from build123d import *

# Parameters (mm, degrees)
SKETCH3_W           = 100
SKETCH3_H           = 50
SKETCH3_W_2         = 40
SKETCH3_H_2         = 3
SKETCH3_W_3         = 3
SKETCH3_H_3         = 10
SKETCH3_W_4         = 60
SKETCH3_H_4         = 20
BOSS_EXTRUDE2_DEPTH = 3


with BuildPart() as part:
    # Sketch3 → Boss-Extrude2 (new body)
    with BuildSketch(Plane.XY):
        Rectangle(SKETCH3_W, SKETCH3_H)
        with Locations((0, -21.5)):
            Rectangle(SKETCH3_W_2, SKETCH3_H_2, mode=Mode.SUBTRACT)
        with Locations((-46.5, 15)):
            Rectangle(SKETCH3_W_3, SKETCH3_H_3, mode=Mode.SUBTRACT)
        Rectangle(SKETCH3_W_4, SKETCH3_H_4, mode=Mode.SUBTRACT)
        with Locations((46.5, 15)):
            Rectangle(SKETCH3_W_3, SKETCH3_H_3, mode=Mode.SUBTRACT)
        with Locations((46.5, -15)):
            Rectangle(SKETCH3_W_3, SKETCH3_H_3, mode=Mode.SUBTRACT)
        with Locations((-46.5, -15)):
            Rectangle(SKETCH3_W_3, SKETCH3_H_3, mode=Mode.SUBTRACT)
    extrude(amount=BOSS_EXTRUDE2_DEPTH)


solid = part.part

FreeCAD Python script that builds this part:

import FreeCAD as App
import Part
import Sketcher
from FreeCAD import Vector


def add_polygon(sketch, points):
    """Adds a closed chain of lines whose ends are joined by coincident constraints."""
    first, n = sketch.GeometryCount, len(points)
    for a, b in zip(points, points[1:] + points[:1]):
        sketch.addGeometry(Part.LineSegment(App.Vector(*a, 0), App.Vector(*b, 0)), False)
    for i in range(n):
        sketch.addConstraint(Sketcher.Constraint("Coincident", first + i, 2, first + (i + 1) % n, 1))

doc = App.newDocument("Part")
body = doc.addObject("PartDesign::Body", "Body")

# Sketch on XY plane
sketch1 = body.newObject("Sketcher::SketchObject", "Sketch")
sketch1.AttachmentSupport = (doc.getObject("XY_Plane"), [""])
sketch1.MapMode = "FlatFace"
add_polygon(sketch1, [(-50, 25), (-50, -25), (50, -25), (50, 25)])  # lines 0-3
add_polygon(sketch1, [(-45, -20), (-48, -20), (-48, -10), (-45, -10)])  # lines 4-7
add_polygon(sketch1, [(20, -23), (-20, -23), (-20, -20), (20, -20)])  # lines 8-11
add_polygon(sketch1, [(48, -20), (45, -20), (45, -10), (48, -10)])  # lines 12-15
add_polygon(sketch1, [(-45, 10), (-48, 10), (-48, 20), (-45, 20)])  # lines 16-19
add_polygon(sketch1, [(30, -10), (-30, -10), (-30, 10), (30, 10)])  # lines 20-23
add_polygon(sketch1, [(48, 10), (45, 10), (45, 20), (48, 20)])  # lines 24-27
sketch1.addConstraint(Sketcher.Constraint("Vertical", 0))
sketch1.addConstraint(Sketcher.Constraint("Horizontal", 1))
sketch1.addConstraint(Sketcher.Constraint("Vertical", 2))
sketch1.addConstraint(Sketcher.Constraint("Horizontal", 3))
sketch1.addConstraint(Sketcher.Constraint("Horizontal", 4))
sketch1.addConstraint(Sketcher.Constraint("Vertical", 5))
sketch1.addConstraint(Sketcher.Constraint("Horizontal", 6))
sketch1.addConstraint(Sketcher.Constraint("Vertical", 7))
sketch1.addConstraint(Sketcher.Constraint("Horizontal", 8))
sketch1.addConstraint(Sketcher.Constraint("Vertical", 9))
sketch1.addConstraint(Sketcher.Constraint("Horizontal", 10))
sketch1.addConstraint(Sketcher.Constraint("Vertical", 11))
sketch1.addConstraint(Sketcher.Constraint("Horizontal", 12))
sketch1.addConstraint(Sketcher.Constraint("Vertical", 13))
sketch1.addConstraint(Sketcher.Constraint("Horizontal", 14))
sketch1.addConstraint(Sketcher.Constraint("Vertical", 15))
sketch1.addConstraint(Sketcher.Constraint("Horizontal", 16))
sketch1.addConstraint(Sketcher.Constraint("Vertical", 17))
sketch1.addConstraint(Sketcher.Constraint("Horizontal", 18))
sketch1.addConstraint(Sketcher.Constraint("Vertical", 19))
sketch1.addConstraint(Sketcher.Constraint("Horizontal", 20))
sketch1.addConstraint(Sketcher.Constraint("Vertical", 21))
sketch1.addConstraint(Sketcher.Constraint("Horizontal", 22))
sketch1.addConstraint(Sketcher.Constraint("Vertical", 23))
sketch1.addConstraint(Sketcher.Constraint("Horizontal", 24))
sketch1.addConstraint(Sketcher.Constraint("Vertical", 25))
sketch1.addConstraint(Sketcher.Constraint("Horizontal", 26))
sketch1.addConstraint(Sketcher.Constraint("Vertical", 27))
sketch1.addConstraint(Sketcher.Constraint("Symmetric", 0, 2, 2, 2, -1, 1))
sketch1.addConstraint(Sketcher.Constraint("Symmetric", 14, 2, 16, 2, -1, 1))
sketch1.addConstraint(Sketcher.Constraint("Symmetric", 12, 2, 18, 2, -1, 1))
sketch1.addConstraint(Sketcher.Constraint("Symmetric", 20, 2, 22, 2, -1, 1))
sketch1.addConstraint(Sketcher.Constraint("Symmetric", 6, 2, 24, 2, -1, 1))
sketch1.addConstraint(Sketcher.Constraint("Symmetric", 4, 2, 26, 2, -1, 1))
sketch1.addConstraint(Sketcher.Constraint("Symmetric", 7, 2, 12, 2, -2))
sketch1.addConstraint(Sketcher.Constraint("Symmetric", 5, 2, 14, 2, -2))
sketch1.addConstraint(Sketcher.Constraint("Horizontal", 7, 2, 9, 2))
sketch1.addConstraint(Sketcher.Constraint("Horizontal", 14, 2, 20, 2))
sketch1.addConstraint(Sketcher.Constraint("Equal", 26, 9))
sketch1.addConstraint(Sketcher.Constraint("DistanceX", 1, 1, 1, 2, 100.0))
sketch1.addConstraint(Sketcher.Constraint("DistanceX", 4, 2, 4, 1, 3.0))
sketch1.addConstraint(Sketcher.Constraint("DistanceX", 8, 2, 8, 1, 40.0))
sketch1.addConstraint(Sketcher.Constraint("DistanceX", 20, 2, 20, 1, 60.0))
sketch1.addConstraint(Sketcher.Constraint("DistanceY", 0, 2, 0, 1, 50.0))
sketch1.addConstraint(Sketcher.Constraint("DistanceY", 5, 1, 5, 2, 10.0))
sketch1.addConstraint(Sketcher.Constraint("DistanceY", 21, 1, 21, 2, 20.0))
sketch1.addConstraint(Sketcher.Constraint("DistanceX", 4, 2, -1, 1, 48.0))
sketch1.addConstraint(Sketcher.Constraint("DistanceX", 8, 2, -1, 1, 20.0))
pad1 = body.newObject("PartDesign::Pad", "Pad")
pad1.Profile = sketch1
pad1.Length = 3

doc.recompute()
